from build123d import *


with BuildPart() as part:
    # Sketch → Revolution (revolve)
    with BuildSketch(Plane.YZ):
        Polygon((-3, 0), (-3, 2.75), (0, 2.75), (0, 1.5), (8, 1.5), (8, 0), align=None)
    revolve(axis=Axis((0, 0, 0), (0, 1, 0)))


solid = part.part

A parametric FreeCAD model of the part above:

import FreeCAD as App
import Part
import Sketcher

V = App.Vector
Q = App.Units.Quantity

doc = App.newDocument("Part")
params = doc.addObject("Spreadsheet::Sheet", "Params")
for row, (alias, value) in enumerate([
    ("sketch1_width", "11 mm"),
    ("sketch1_width2", "8 mm"),
    ("sketch1_height", "1.5 mm"),
    ("sketch1_height2", "2.75 mm"),
    ("revolution_angle", "360 deg"),
], start=1):
    params.set(f"A{row}", alias)
    params.set(f"B{row}", "=" + value)
    params.setAlias(f"B{row}", alias)

body = doc.addObject("PartDesign::Body", "Body")

sketch1 = body.newObject("Sketcher::SketchObject", "Sketch")
sketch1.AttachmentSupport = (doc.getObject("YZ_Plane"), [""])
sketch1.MapMode = "FlatFace"
sketch1.addGeometry([
    Part.LineSegment(V(-3, 2.8, 0), V(-3, 0, 0)),
    Part.LineSegment(V(-3, 0, 0), V(8, 0, 0)),
    Part.LineSegment(V(8, 0, 0), V(8, 1.5, 0)),
    Part.LineSegment(V(8, 1.5, 0), V(0, 1.5, 0)),
    Part.LineSegment(V(0, 1.5, 0), V(0, 2.8, 0)),
    Part.LineSegment(V(0, 2.8, 0), V(-3, 2.8, 0)),
], False)
sketch1.addConstraint([
    Sketcher.Constraint("Coincident", 0, 2, 1, 1),
    Sketcher.Constraint("Coincident", 1, 2, 2, 1),
    Sketcher.Constraint("Coincident", 2, 2, 3, 1),
    Sketcher.Constraint("Coincident", 3, 2, 4, 1),
    Sketcher.Constraint("Coincident", 4, 2, 5, 1),
    Sketcher.Constraint("Coincident", 5, 2, 0, 1),
    Sketcher.Constraint("Vertical", 0),
    Sketcher.Constraint("Horizontal", 1),
    Sketcher.Constraint("Vertical", 2),
    Sketcher.Constraint("Horizontal", 3),
    Sketcher.Constraint("Vertical", 4),
    Sketcher.Constraint("Horizontal", 5),
    Sketcher.Constraint("PointOnObject", 0, 2, -1),
    Sketcher.Constraint("PointOnObject", 3, 2, -2),
    Sketcher.Constraint("DistanceX", 1, 1, 1, 2, Q("11 mm")),
    Sketcher.Constraint("DistanceX", 3, 2, 3, 1, Q("8 mm")),
    Sketcher.Constraint("DistanceY", 2, 1, 2, 2, Q("1.5 mm")),
    Sketcher.Constraint("DistanceY", 0, 2, 0, 1, Q("2.75 mm")),
])
sketch1.setExpression("Constraints[14]", "Params.sketch1_width")
sketch1.setExpression("Constraints[15]", "Params.sketch1_width2")
sketch1.setExpression("Constraints[16]", "Params.sketch1_height")
sketch1.setExpression("Constraints[17]", "Params.sketch1_height2")
revolution = body.newObject("PartDesign::Revolution", "Revolution")
revolution.Profile = sketch1
revolution.ReferenceAxis = (sketch1, ["H_Axis"])
revolution.setExpression("Angle", "Params.revolution_angle")

doc.recompute()
